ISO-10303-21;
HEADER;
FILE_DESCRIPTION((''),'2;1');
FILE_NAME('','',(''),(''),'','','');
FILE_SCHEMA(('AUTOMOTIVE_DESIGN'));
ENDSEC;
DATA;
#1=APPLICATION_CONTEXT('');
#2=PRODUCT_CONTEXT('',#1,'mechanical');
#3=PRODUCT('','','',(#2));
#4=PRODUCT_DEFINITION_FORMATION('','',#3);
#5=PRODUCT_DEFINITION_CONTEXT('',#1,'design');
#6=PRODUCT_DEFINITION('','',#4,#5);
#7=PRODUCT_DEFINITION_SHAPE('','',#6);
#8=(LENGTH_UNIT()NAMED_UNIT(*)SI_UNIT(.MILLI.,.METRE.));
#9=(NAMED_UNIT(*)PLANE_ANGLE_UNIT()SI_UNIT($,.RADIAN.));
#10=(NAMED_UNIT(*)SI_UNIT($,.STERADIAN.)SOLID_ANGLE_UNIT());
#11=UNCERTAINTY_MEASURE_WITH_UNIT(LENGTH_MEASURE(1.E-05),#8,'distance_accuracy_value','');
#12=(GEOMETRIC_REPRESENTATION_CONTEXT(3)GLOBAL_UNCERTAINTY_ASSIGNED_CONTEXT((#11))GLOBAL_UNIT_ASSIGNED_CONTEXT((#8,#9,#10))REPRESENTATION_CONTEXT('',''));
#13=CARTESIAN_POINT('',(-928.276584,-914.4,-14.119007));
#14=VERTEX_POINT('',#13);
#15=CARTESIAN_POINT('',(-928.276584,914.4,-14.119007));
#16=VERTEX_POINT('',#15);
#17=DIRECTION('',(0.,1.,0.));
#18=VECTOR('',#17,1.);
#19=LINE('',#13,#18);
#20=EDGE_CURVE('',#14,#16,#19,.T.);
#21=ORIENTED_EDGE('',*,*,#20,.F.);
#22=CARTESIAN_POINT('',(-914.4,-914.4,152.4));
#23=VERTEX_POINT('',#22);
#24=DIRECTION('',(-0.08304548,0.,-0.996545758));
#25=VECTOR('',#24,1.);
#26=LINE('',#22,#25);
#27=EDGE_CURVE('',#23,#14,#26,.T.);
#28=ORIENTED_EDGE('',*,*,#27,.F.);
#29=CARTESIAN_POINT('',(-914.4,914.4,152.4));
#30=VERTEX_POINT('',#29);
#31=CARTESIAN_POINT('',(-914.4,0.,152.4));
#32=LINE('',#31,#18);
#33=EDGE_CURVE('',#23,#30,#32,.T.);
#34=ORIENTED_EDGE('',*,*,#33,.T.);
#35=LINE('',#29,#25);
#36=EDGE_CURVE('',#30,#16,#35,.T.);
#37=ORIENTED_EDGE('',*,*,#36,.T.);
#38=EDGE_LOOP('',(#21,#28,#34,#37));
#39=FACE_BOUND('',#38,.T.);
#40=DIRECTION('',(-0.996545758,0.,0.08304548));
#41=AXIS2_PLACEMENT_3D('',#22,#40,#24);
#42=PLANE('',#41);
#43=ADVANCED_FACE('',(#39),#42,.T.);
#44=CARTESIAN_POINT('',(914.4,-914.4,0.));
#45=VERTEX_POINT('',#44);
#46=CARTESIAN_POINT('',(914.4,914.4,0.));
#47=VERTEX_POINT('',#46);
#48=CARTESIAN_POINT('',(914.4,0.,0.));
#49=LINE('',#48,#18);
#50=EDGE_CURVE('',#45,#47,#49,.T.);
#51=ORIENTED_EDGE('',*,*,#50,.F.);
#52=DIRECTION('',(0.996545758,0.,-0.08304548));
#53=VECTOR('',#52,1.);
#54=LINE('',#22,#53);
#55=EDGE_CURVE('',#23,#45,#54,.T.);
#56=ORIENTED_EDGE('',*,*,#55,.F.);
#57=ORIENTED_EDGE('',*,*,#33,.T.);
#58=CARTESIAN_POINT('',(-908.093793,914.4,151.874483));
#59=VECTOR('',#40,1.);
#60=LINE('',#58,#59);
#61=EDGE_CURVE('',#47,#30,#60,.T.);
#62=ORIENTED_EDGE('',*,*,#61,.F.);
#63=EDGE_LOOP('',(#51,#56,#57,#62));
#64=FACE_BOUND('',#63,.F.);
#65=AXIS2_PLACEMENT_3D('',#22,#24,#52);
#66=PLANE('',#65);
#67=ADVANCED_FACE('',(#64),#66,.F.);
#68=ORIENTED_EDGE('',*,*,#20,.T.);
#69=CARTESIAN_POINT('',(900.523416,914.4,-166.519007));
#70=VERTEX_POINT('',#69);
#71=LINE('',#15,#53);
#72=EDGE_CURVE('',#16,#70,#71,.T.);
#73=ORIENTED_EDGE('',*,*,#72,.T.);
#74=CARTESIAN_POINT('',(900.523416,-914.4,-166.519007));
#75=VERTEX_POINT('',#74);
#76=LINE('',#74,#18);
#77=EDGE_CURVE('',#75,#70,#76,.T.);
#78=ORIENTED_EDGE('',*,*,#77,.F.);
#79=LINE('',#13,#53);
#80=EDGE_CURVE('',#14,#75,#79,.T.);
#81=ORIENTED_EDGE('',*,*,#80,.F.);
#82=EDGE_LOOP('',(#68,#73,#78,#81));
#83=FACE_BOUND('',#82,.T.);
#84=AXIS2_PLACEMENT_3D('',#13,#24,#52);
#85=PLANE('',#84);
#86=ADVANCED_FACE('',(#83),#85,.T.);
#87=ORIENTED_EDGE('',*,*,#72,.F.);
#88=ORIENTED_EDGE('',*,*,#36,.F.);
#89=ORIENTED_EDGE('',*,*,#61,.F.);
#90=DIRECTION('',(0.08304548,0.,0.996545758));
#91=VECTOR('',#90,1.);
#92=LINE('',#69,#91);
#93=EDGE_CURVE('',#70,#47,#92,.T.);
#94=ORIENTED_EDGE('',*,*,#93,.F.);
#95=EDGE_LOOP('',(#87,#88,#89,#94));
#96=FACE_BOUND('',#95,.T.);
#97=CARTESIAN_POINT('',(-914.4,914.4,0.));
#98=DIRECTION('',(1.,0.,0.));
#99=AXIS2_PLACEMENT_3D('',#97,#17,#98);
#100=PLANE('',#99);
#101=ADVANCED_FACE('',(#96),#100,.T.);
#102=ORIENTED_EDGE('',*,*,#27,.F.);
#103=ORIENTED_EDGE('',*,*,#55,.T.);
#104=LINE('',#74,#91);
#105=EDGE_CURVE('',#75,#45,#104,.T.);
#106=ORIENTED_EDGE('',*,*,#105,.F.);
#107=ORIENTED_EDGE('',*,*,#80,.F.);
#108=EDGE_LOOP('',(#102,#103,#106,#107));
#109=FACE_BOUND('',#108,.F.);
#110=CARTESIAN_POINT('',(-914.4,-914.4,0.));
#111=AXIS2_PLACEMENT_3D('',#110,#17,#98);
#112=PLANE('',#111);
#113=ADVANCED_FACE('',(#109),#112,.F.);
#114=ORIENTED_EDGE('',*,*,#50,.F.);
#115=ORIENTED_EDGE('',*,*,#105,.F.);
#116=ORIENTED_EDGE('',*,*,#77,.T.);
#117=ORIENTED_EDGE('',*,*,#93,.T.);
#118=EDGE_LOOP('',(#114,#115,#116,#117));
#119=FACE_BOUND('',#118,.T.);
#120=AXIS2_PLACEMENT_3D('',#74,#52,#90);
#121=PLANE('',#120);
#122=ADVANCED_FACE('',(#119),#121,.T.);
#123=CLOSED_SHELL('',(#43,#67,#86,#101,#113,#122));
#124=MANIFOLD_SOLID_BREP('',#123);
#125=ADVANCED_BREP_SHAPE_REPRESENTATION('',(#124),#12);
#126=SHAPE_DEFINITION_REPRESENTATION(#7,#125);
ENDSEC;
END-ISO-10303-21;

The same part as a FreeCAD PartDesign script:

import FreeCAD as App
import Part
import Sketcher

V = App.Vector
Q = App.Units.Quantity

doc = App.newDocument("Part")
body = doc.addObject("PartDesign::Body", "Body")

# Sketch on XY plane
sketch1 = doc.addObject("Sketcher::SketchObject", "Sketch")
body.addObject(sketch1)
sketch1.AttachmentSupport = (doc.XY_Plane, [""])
sketch1.MapMode = "FlatFace"
sketch1.addGeometry([
    Part.LineSegment(V(-914, 914, 0), V(-914, -914, 0)),
    Part.LineSegment(V(-914, -914, 0), V(914, -914, 0)),
    Part.LineSegment(V(914, -914, 0), V(914, 914, 0)),
    Part.LineSegment(V(914, 914, 0), V(-914, 914, 0)),
], False)
sketch1.addConstraint([
    Sketcher.Constraint("Coincident", 0, 2, 1, 1),
    Sketcher.Constraint("Coincident", 1, 2, 2, 1),
    Sketcher.Constraint("Coincident", 2, 2, 3, 1),
    Sketcher.Constraint("Coincident", 3, 2, 0, 1),
    Sketcher.Constraint("Vertical", 0),
    Sketcher.Constraint("Horizontal", 1),
    Sketcher.Constraint("Vertical", 2),
    Sketcher.Constraint("Horizontal", 3),
    Sketcher.Constraint("Symmetric", 0, 2, 2, 2, -1, 1),
    Sketcher.Constraint("Equal", 3, 0),
    Sketcher.Constraint("DistanceX", 1, 1, 1, 2, Q("72 in")),
])
pad1 = doc.addObject("PartDesign::Pad", "Pad")
body.addObject(pad1)
pad1.Profile = sketch1
pad1.Length = Q("6 in")

# Sketch on XZ plane
sketch2 = doc.addObject("Sketcher::SketchObject", "Sketch001")
body.addObject(sketch2)
sketch2.AttachmentSupport = (doc.XZ_Plane, [""])
sketch2.MapMode = "FlatFace"
sketch2.AttachmentOffset = App.Placement(V(0, 0, 36 * 25.4), App.Rotation())
sketch2.addGeometry([
    Part.LineSegment(V(914, 152, 0), V(-914, 152, 0)),
    Part.LineSegment(V(-914, 152, 0), V(914, 0, 0)),
    Part.LineSegment(V(914, 0, 0), V(914, 152, 0)),
], False)
sketch2.addConstraint([
    Sketcher.Constraint("Coincident", 0, 2, 1, 1),
    Sketcher.Constraint("Coincident", 1, 2, 2, 1),
    Sketcher.Constraint("Coincident", 2, 2, 0, 1),
    Sketcher.Constraint("Horizontal", 0),
    Sketcher.Constraint("Vertical", 2),
    Sketcher.Constraint("PointOnObject", 1, 2, -1),
    Sketcher.Constraint("DistanceX", 0, 2, 0, 1, Q("72 in")),
    Sketcher.Constraint("DistanceY", 2, 1, 2, 2, Q("6 in")),
    Sketcher.Constraint("DistanceX", 0, 2, -1, 1, Q("36 in")),
])
pocket1 = doc.addObject("PartDesign::Pocket", "Pocket")
body.addObject(pocket1)
pocket1.Profile = sketch2
pocket1.Type = "ThroughAll"

# Sketch on XZ plane
sketch3 = doc.addObject("Sketcher::SketchObject", "Sketch002")
body.addObject(sketch3)
sketch3.AttachmentSupport = (doc.XZ_Plane, [""])
sketch3.MapMode = "FlatFace"
sketch3.AttachmentOffset = App.Placement(V(0, 0, 36 * 25.4), App.Rotation())
sketch3.addGeometry([
    Part.LineSegment(V(914, 0, 0), V(-914, 152, 0)),
    Part.LineSegment(V(-914, 152, 0), V(-928, -14, 0)),
    Part.LineSegment(V(-928, -14, 0), V(901, -167, 0)),
    Part.LineSegment(V(901, -167, 0), V(914, 0, 0)),
], False)
sketch3.addConstraint([
    Sketcher.Constraint("Coincident", 0, 2, 1, 1),
    Sketcher.Constraint("Coincident", 1, 2, 2, 1),
    Sketcher.Constraint("Coincident", 2, 2, 3, 1),
    Sketcher.Constraint("Coincident", 3, 2, 0, 1),
    Sketcher.Constraint("PointOnObject", 3, 2, -1),
    Sketcher.Constraint("Perpendicular", 0, 1),
    Sketcher.Constraint("Perpendicular", 1, 2),
    Sketcher.Constraint("Perpendicular", 2, 3),
    Sketcher.Constraint("DistanceX", 0, 2, -1, 1, Q("36 in")),
    Sketcher.Constraint("DistanceY", -1, 1, 0, 2, Q("6 in")),
    Sketcher.Constraint("DistanceX", -1, 1, 3, 2, Q("36 in")),
    Sketcher.Constraint("Distance", 1, Q("167.096198 mm")),
])
pad2 = doc.addObject("PartDesign::Pad", "Pad001")
body.addObject(pad2)
pad2.Profile = sketch3
pad2.Length = Q("72 in")
pad2.Reversed = True

doc.recompute()
